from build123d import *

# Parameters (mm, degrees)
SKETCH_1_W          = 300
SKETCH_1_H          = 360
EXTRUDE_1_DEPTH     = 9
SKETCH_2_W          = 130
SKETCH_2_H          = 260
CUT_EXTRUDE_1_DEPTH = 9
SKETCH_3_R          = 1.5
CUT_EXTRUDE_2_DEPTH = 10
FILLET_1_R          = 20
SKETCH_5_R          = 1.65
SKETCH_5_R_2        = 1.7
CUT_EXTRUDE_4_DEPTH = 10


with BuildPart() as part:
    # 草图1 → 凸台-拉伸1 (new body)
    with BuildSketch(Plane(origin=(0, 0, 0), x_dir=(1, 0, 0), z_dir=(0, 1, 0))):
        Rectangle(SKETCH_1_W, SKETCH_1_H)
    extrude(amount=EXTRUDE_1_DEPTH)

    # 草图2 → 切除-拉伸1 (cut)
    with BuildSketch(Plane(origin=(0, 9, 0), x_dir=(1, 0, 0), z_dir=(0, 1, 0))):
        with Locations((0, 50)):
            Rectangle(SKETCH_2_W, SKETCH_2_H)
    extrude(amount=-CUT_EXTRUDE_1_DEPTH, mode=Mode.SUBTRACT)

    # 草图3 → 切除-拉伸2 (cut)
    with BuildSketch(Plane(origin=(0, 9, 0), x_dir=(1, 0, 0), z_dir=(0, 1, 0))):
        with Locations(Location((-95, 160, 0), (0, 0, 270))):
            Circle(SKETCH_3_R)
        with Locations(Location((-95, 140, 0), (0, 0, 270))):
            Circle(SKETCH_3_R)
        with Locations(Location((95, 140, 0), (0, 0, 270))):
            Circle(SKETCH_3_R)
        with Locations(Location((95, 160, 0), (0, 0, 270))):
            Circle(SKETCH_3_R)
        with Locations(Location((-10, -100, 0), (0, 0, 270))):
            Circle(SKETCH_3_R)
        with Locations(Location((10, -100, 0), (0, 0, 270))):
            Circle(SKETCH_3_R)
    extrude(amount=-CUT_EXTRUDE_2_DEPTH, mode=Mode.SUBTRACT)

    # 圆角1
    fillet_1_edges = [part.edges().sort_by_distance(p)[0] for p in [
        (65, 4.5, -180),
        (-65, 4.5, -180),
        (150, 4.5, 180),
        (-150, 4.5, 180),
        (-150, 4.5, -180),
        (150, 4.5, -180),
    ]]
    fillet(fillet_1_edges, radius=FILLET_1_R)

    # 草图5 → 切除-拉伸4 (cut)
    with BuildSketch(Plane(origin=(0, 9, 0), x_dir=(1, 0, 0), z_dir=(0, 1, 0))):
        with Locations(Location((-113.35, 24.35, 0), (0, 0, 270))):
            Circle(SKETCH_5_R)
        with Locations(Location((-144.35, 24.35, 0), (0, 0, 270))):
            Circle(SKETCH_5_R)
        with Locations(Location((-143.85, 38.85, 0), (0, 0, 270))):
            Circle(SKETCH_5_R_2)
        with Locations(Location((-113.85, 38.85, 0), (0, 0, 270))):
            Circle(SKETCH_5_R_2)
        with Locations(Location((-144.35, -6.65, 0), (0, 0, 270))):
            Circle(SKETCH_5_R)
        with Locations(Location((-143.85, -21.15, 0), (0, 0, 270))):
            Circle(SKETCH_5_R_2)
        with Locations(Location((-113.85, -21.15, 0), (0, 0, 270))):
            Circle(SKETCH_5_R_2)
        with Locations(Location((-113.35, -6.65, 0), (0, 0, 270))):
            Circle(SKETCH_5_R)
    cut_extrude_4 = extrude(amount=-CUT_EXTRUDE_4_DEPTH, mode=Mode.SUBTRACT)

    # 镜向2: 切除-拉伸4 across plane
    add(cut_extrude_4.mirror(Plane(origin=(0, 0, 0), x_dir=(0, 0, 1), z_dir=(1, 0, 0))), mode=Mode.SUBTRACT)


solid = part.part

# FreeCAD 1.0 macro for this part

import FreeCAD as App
import Part
import Sketcher

V = App.Vector


def edges_at(feature, points):
    """Names of the edges that pass closest to the given points."""
    edges = feature.Shape.Edges
    near = lambda p: min(range(len(edges)), key=lambda i: edges[i].distToShape(Part.Vertex(*p))[0])
    return sorted({f"Edge{near(p) + 1}" for p in points})

doc = App.newDocument("Part")
body = doc.addObject("PartDesign::Body", "Body")

sketch1 = body.newObject("Sketcher::SketchObject", "Sketch")
sketch1.AttachmentSupport = (doc.getObject("XZ_Plane"), [""])
sketch1.MapMode = "FlatFace"
sketch1.addGeometry([
    Part.LineSegment(V(-150, -180, 0), V(-150, 180, 0)),
    Part.LineSegment(V(-150, 180, 0), V(150, 180, 0)),
    Part.LineSegment(V(150, 180, 0), V(150, -180, 0)),
    Part.LineSegment(V(150, -180, 0), V(-150, -180, 0)),
], False)
sketch1.addConstraint([
    Sketcher.Constraint("Coincident", 0, 2, 1, 1),
    Sketcher.Constraint("Coincident", 1, 2, 2, 1),
    Sketcher.Constraint("Coincident", 2, 2, 3, 1),
    Sketcher.Constraint("Coincident", 3, 2, 0, 1),
    Sketcher.Constraint("Vertical", 0),
    Sketcher.Constraint("Horizontal", 1),
    Sketcher.Constraint("Vertical", 2),
    Sketcher.Constraint("Horizontal", 3),
    Sketcher.Constraint("Symmetric", 0, 2, 2, 2, -1, 1),
    Sketcher.Constraint("DistanceX", 1, 1, 1, 2, 300.0),
    Sketcher.Constraint("DistanceY", 0, 1, 0, 2, 360.0),
])
pad1 = body.newObject("PartDesign::Pad", "Pad")
pad1.Profile = sketch1
pad1.Length = 9
pad1.Reversed = True

sketch2 = body.newObject("Sketcher::SketchObject", "Sketch001")
sketch2.AttachmentSupport = (doc.getObject("XZ_Plane"), [""])
sketch2.MapMode = "FlatFace"
sketch2.AttachmentOffset = App.Placement(V(0, 0, -9), App.Rotation())
sketch2.addGeometry([
    Part.LineSegment(V(-65, -180, 0), V(-65, 80, 0)),
    Part.LineSegment(V(-65, 80, 0), V(65, 80, 0)),
    Part.LineSegment(V(65, 80, 0), V(65, -180, 0)),
    Part.LineSegment(V(65, -180, 0), V(-65, -180, 0)),
], False)
sketch2.addConstraint([
    Sketcher.Constraint("Coincident", 0, 2, 1, 1),
    Sketcher.Constraint("Coincident", 1, 2, 2, 1),
    Sketcher.Constraint("Coincident", 2, 2, 3, 1),
    Sketcher.Constraint("Coincident", 3, 2, 0, 1),
    Sketcher.Constraint("Vertical", 0),
    Sketcher.Constraint("Horizontal", 1),
    Sketcher.Constraint("Vertical", 2),
    Sketcher.Constraint("Horizontal", 3),
    Sketcher.Constraint("DistanceX", 1, 1, 1, 2, 130.0),
    Sketcher.Constraint("DistanceY", 0, 1, 0, 2, 260.0),
    Sketcher.Constraint("DistanceX", 0, 2, -1, 1, 65.0),
    Sketcher.Constraint("DistanceY", -1, 1, 0, 2, 80.0),
])
pocket1 = body.newObject("PartDesign::Pocket", "Pocket")
pocket1.Profile = sketch2
pocket1.Length = 9
pocket1.Reversed = True

sketch3 = body.newObject("Sketcher::SketchObject", "Sketch002")
sketch3.AttachmentSupport = (doc.getObject("XZ_Plane"), [""])
sketch3.MapMode = "FlatFace"
sketch3.AttachmentOffset = App.Placement(V(0, 0, -9), App.Rotation())
sketch3.addGeometry([
    Part.Circle(V(-95, -160, 0), V(0, 0, 1), 1.5),
    Part.Circle(V(-95, -140, 0), V(0, 0, 1), 1.5),
    Part.Circle(V(95, -140, 0), V(0, 0, 1), 1.5),
    Part.Circle(V(95, -160, 0), V(0, 0, 1), 1.5),
    Part.Circle(V(-10, 100, 0), V(0, 0, 1), 1.5),
    Part.Circle(V(10, 100, 0), V(0, 0, 1), 1.5),
], False)
sketch3.addConstraint([
    Sketcher.Constraint("Equal", 0, 1),
    Sketcher.Constraint("Equal", 1, 2),
    Sketcher.Constraint("Equal", 2, 3),
    Sketcher.Constraint("Equal", 3, 4),
    Sketcher.Constraint("Equal", 4, 5),
    Sketcher.Constraint("Symmetric", 1, 3, 2, 3, -2),
    Sketcher.Constraint("Symmetric", 0, 3, 3, 3, -2),
    Sketcher.Constraint("Symmetric", 4, 3, 5, 3, -2),
    Sketcher.Constraint("Vertical", 0, 3, 1, 3),
    Sketcher.Constraint("Diameter", 0, 3.0),
    Sketcher.Constraint("DistanceX", 0, 3, -1, 1, 95.0),
    Sketcher.Constraint("DistanceY", 0, 3, -1, 1, 160.0),
    Sketcher.Constraint("DistanceY", 1, 3, -1, 1, 140.0),
    Sketcher.Constraint("DistanceX", 4, 3, -1, 1, 10.0),
    Sketcher.Constraint("DistanceY", -1, 1, 4, 3, 100.0),
])
pocket2 = body.newObject("PartDesign::Pocket", "Pocket001")
pocket2.Profile = sketch3
pocket2.Length = 10
pocket2.Reversed = True
doc.recompute()

fillet = body.newObject("PartDesign::Fillet", "Fillet")
fillet.Base = (pocket2, edges_at(pocket2, [
    (65, 4.5, -180),
    (-65, 4.5, -180),
    (150, 4.5, 180),
    (-150, 4.5, 180),
    (-150, 4.5, -180),
    (150, 4.5, -180),
]))
fillet.Radius = 20

sketch4 = body.newObject("Sketcher::SketchObject", "Sketch003")
sketch4.AttachmentSupport = (doc.getObject("XZ_Plane"), [""])
sketch4.MapMode = "FlatFace"
sketch4.AttachmentOffset = App.Placement(V(0, 0, -9), App.Rotation())
sketch4.addGeometry([
    Part.Circle(V(-113.3, -24.4, 0), V(0, 0, 1), 1.6),
    Part.Circle(V(-144.3, -24.4, 0), V(0, 0, 1), 1.6),
    Part.Circle(V(-143.8, -38.9, 0), V(0, 0, 1), 1.7),
    Part.Circle(V(-113.8, -38.9, 0), V(0, 0, 1), 1.7),
    Part.Circle(V(-144.3, 6.7, 0), V(0, 0, 1), 1.6),
    Part.Circle(V(-143.8, 21.1, 0), V(0, 0, 1), 1.7),
    Part.Circle(V(-113.8, 21.1, 0), V(0, 0, 1), 1.7),
    Part.Circle(V(-113.3, 6.7, 0), V(0, 0, 1), 1.6),
], False)
sketch4.addConstraint([
    Sketcher.Constraint("Equal", 0, 1),
    Sketcher.Constraint("Equal", 2, 3),
    Sketcher.Constraint("Equal", 1, 4),
    Sketcher.Constraint("Equal", 3, 5),
    Sketcher.Constraint("Equal", 5, 6),
    Sketcher.Constraint("Equal", 4, 7),
    Sketcher.Constraint("Horizontal", 0, 3, 1, 3),
    Sketcher.Constraint("Horizontal", 2, 3, 3, 3),
    Sketcher.Constraint("Horizontal", 5, 3, 6, 3),
    Sketcher.Constraint("Horizontal", 4, 3, 7, 3),
    Sketcher.Constraint("Vertical", 1, 3, 4, 3),
    Sketcher.Constraint("Vertical", 2, 3, 5, 3),
    Sketcher.Constraint("Vertical", 3, 3, 6, 3),
    Sketcher.Constraint("Vertical", 0, 3, 7, 3),
    Sketcher.Constraint("Diameter", 0, 3.3),
    Sketcher.Constraint("Diameter", 2, 3.4),
    Sketcher.Constraint("DistanceX", 1, 3, 0, 3, 31.0),
    Sketcher.Constraint("DistanceX", 2, 3, 3, 3, 30.0),
    Sketcher.Constraint("DistanceY", 1, 3, 4, 3, 31.0),
    Sketcher.Constraint("DistanceY", 2, 3, 5, 3, 60.0),
    Sketcher.Constraint("DistanceX", 1, 3, 2, 3, 0.5),
    Sketcher.Constraint("DistanceY", 2, 3, 1, 3, 14.5),
    Sketcher.Constraint("DistanceX", 0, 3, -1, 1, 113.35),
    Sketcher.Constraint("DistanceY", 0, 3, -1, 1, 24.35),
])
pocket3 = body.newObject("PartDesign::Pocket", "Pocket002")
pocket3.Profile = sketch4
pocket3.Length = 10
pocket3.Reversed = True
doc.recompute()

mirrored = body.newObject("PartDesign::Mirrored", "Mirrored")
mirrored.Originals = [pocket3]
mirrored.MirrorPlane = (doc.getObject("YZ_Plane"), [""])
body.Tip = mirrored

doc.recompute()
